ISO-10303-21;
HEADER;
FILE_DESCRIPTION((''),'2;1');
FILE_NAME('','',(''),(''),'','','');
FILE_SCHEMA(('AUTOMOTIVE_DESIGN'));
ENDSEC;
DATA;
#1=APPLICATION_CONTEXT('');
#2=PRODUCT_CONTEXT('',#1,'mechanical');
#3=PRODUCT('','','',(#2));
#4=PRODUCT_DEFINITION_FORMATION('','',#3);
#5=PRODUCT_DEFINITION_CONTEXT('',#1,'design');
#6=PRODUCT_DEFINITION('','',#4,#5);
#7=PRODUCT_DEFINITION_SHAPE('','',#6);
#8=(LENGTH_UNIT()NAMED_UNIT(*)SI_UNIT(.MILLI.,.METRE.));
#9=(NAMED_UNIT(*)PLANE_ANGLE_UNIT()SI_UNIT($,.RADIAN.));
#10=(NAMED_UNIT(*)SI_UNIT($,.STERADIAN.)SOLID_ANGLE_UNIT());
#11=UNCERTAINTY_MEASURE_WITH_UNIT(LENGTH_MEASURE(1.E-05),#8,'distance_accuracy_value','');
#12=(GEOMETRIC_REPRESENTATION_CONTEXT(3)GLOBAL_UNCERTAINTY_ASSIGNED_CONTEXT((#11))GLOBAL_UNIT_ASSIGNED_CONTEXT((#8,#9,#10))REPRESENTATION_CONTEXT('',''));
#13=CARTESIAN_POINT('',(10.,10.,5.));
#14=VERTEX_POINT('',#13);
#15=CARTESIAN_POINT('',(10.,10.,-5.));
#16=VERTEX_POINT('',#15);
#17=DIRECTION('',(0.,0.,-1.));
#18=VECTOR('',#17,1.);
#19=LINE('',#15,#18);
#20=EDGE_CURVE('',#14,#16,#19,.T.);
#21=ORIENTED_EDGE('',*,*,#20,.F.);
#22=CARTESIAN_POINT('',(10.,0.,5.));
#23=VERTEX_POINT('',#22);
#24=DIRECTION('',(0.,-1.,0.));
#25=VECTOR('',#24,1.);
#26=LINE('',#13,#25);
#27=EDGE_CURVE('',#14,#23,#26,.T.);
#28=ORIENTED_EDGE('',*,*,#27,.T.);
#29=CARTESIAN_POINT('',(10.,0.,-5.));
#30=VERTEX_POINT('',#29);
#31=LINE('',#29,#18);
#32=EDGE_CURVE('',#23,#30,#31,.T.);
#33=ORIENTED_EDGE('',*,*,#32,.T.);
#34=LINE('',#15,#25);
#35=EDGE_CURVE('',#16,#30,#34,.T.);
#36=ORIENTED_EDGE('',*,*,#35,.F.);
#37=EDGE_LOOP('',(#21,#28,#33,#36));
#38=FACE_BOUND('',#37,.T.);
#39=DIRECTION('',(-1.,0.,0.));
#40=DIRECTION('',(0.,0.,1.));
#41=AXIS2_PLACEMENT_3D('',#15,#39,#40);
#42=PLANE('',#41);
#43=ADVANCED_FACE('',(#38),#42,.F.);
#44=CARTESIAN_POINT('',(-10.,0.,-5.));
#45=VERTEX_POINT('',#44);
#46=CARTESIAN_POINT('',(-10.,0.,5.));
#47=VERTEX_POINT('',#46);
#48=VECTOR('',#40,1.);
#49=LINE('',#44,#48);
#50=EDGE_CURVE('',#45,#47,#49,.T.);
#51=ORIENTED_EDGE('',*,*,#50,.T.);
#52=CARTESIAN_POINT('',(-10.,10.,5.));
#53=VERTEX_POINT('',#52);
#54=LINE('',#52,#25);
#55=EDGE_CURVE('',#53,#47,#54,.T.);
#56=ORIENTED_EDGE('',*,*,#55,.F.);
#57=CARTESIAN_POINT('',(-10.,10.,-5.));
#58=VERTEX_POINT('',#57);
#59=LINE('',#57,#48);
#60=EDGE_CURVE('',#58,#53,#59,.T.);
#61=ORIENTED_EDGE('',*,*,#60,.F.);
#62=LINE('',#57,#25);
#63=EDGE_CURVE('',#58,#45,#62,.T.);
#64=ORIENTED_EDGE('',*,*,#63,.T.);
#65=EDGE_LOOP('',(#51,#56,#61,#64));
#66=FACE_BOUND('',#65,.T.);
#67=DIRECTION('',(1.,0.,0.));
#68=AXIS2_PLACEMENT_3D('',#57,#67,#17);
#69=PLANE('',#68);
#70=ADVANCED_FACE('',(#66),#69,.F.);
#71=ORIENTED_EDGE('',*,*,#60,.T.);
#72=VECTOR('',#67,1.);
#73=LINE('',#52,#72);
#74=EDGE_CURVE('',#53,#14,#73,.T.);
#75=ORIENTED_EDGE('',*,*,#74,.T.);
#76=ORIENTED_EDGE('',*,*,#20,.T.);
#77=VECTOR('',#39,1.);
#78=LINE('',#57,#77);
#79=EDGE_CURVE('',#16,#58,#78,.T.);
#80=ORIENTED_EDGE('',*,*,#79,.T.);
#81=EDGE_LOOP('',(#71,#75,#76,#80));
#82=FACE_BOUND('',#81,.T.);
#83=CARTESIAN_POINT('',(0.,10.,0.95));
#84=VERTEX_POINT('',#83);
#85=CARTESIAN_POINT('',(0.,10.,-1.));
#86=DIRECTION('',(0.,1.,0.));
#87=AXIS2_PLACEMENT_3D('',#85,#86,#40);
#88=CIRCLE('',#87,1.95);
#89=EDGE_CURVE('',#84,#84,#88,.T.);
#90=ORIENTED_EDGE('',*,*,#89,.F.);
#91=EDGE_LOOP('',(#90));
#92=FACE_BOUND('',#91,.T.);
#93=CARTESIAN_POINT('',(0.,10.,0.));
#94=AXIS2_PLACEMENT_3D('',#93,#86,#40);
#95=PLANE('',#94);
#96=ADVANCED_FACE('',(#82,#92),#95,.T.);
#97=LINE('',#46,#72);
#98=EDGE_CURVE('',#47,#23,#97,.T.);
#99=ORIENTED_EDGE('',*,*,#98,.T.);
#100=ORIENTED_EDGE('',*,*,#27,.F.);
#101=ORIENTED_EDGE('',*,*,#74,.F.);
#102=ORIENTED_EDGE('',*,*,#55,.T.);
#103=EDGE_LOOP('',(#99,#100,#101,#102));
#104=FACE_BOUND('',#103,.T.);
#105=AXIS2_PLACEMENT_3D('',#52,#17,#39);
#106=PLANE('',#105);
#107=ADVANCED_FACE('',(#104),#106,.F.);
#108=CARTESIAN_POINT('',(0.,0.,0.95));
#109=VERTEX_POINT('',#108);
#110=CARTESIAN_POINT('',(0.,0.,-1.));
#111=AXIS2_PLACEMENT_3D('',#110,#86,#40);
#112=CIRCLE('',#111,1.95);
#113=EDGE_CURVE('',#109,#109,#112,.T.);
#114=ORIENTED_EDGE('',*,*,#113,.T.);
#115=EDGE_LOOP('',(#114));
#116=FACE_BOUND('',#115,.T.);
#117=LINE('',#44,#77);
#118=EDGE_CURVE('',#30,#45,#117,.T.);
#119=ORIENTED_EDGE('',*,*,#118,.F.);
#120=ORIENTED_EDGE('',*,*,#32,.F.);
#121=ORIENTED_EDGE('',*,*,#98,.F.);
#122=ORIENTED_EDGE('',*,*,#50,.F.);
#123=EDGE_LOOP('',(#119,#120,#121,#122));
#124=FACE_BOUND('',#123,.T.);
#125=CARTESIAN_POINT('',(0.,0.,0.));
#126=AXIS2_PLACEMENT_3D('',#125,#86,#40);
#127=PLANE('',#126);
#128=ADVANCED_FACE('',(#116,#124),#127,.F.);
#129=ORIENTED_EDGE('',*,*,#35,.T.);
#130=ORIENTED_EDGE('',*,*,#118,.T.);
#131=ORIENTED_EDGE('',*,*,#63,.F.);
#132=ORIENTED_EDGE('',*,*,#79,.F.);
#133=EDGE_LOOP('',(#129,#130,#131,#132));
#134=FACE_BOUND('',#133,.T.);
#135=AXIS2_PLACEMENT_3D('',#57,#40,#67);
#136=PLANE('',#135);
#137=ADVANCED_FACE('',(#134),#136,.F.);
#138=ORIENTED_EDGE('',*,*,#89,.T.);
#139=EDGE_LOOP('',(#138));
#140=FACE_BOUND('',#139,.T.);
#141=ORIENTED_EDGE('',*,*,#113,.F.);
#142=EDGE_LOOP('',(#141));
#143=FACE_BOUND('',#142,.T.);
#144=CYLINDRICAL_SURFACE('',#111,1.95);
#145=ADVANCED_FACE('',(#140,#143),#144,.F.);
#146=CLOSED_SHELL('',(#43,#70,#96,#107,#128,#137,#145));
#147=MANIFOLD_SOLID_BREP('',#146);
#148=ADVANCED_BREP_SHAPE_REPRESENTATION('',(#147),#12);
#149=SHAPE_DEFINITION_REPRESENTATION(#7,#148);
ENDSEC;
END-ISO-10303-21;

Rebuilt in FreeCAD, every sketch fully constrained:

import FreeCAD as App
import Part
import Sketcher
from FreeCAD import Vector


def add_polygon(sketch, points):
    """Adds a closed chain of lines whose ends are joined by coincident constraints."""
    first, n = sketch.GeometryCount, len(points)
    for a, b in zip(points, points[1:] + points[:1]):
        sketch.addGeometry(Part.LineSegment(App.Vector(*a, 0), App.Vector(*b, 0)), False)
    for i in range(n):
        sketch.addConstraint(Sketcher.Constraint("Coincident", first + i, 2, first + (i + 1) % n, 1))

doc = App.newDocument("Part")
body = doc.addObject("PartDesign::Body", "Body")

# Sketch on XZ plane
sketch1 = doc.addObject("Sketcher::SketchObject", "Sketch")
body.addObject(sketch1)
sketch1.AttachmentSupport = (doc.XZ_Plane, [""])
sketch1.MapMode = "FlatFace"
add_polygon(sketch1, [(-10, -5), (-10, 5), (10, 5), (10, -5)])  # lines 0-3
sketch1.addConstraint(Sketcher.Constraint("Vertical", 0))
sketch1.addConstraint(Sketcher.Constraint("Horizontal", 1))
sketch1.addConstraint(Sketcher.Constraint("Vertical", 2))
sketch1.addConstraint(Sketcher.Constraint("Horizontal", 3))
sketch1.addConstraint(Sketcher.Constraint("Symmetric", 0, 2, 2, 2, -1, 1))
sketch1.addConstraint(Sketcher.Constraint("DistanceX", 1, 1, 1, 2, 20.0))
sketch1.addConstraint(Sketcher.Constraint("DistanceY", 0, 1, 0, 2, 10.0))
pad1 = doc.addObject("PartDesign::Pad", "Pad")
body.addObject(pad1)
pad1.Profile = sketch1
pad1.Length = 10
pad1.Reversed = True

# Sketch on XZ plane
sketch2 = doc.addObject("Sketcher::SketchObject", "Sketch001")
body.addObject(sketch2)
sketch2.AttachmentSupport = (doc.XZ_Plane, [""])
sketch2.MapMode = "FlatFace"
sketch2.AttachmentOffset = App.Placement(Vector(0, 0, -10), App.Rotation())
sketch2.addGeometry(Part.Circle(Vector(0, -1, 0), Vector(0, 0, 1), 1.9), False)
sketch2.addConstraint(Sketcher.Constraint("PointOnObject", 0, 3, -2))
sketch2.addConstraint(Sketcher.Constraint("Diameter", 0, 3.9))
sketch2.addConstraint(Sketcher.Constraint("DistanceY", 0, 3, -1, 1, 1.0))
pocket1 = doc.addObject("PartDesign::Pocket", "Pocket")
body.addObject(pocket1)
pocket1.Profile = sketch2
pocket1.Length = 10
pocket1.Reversed = True

doc.recompute()
